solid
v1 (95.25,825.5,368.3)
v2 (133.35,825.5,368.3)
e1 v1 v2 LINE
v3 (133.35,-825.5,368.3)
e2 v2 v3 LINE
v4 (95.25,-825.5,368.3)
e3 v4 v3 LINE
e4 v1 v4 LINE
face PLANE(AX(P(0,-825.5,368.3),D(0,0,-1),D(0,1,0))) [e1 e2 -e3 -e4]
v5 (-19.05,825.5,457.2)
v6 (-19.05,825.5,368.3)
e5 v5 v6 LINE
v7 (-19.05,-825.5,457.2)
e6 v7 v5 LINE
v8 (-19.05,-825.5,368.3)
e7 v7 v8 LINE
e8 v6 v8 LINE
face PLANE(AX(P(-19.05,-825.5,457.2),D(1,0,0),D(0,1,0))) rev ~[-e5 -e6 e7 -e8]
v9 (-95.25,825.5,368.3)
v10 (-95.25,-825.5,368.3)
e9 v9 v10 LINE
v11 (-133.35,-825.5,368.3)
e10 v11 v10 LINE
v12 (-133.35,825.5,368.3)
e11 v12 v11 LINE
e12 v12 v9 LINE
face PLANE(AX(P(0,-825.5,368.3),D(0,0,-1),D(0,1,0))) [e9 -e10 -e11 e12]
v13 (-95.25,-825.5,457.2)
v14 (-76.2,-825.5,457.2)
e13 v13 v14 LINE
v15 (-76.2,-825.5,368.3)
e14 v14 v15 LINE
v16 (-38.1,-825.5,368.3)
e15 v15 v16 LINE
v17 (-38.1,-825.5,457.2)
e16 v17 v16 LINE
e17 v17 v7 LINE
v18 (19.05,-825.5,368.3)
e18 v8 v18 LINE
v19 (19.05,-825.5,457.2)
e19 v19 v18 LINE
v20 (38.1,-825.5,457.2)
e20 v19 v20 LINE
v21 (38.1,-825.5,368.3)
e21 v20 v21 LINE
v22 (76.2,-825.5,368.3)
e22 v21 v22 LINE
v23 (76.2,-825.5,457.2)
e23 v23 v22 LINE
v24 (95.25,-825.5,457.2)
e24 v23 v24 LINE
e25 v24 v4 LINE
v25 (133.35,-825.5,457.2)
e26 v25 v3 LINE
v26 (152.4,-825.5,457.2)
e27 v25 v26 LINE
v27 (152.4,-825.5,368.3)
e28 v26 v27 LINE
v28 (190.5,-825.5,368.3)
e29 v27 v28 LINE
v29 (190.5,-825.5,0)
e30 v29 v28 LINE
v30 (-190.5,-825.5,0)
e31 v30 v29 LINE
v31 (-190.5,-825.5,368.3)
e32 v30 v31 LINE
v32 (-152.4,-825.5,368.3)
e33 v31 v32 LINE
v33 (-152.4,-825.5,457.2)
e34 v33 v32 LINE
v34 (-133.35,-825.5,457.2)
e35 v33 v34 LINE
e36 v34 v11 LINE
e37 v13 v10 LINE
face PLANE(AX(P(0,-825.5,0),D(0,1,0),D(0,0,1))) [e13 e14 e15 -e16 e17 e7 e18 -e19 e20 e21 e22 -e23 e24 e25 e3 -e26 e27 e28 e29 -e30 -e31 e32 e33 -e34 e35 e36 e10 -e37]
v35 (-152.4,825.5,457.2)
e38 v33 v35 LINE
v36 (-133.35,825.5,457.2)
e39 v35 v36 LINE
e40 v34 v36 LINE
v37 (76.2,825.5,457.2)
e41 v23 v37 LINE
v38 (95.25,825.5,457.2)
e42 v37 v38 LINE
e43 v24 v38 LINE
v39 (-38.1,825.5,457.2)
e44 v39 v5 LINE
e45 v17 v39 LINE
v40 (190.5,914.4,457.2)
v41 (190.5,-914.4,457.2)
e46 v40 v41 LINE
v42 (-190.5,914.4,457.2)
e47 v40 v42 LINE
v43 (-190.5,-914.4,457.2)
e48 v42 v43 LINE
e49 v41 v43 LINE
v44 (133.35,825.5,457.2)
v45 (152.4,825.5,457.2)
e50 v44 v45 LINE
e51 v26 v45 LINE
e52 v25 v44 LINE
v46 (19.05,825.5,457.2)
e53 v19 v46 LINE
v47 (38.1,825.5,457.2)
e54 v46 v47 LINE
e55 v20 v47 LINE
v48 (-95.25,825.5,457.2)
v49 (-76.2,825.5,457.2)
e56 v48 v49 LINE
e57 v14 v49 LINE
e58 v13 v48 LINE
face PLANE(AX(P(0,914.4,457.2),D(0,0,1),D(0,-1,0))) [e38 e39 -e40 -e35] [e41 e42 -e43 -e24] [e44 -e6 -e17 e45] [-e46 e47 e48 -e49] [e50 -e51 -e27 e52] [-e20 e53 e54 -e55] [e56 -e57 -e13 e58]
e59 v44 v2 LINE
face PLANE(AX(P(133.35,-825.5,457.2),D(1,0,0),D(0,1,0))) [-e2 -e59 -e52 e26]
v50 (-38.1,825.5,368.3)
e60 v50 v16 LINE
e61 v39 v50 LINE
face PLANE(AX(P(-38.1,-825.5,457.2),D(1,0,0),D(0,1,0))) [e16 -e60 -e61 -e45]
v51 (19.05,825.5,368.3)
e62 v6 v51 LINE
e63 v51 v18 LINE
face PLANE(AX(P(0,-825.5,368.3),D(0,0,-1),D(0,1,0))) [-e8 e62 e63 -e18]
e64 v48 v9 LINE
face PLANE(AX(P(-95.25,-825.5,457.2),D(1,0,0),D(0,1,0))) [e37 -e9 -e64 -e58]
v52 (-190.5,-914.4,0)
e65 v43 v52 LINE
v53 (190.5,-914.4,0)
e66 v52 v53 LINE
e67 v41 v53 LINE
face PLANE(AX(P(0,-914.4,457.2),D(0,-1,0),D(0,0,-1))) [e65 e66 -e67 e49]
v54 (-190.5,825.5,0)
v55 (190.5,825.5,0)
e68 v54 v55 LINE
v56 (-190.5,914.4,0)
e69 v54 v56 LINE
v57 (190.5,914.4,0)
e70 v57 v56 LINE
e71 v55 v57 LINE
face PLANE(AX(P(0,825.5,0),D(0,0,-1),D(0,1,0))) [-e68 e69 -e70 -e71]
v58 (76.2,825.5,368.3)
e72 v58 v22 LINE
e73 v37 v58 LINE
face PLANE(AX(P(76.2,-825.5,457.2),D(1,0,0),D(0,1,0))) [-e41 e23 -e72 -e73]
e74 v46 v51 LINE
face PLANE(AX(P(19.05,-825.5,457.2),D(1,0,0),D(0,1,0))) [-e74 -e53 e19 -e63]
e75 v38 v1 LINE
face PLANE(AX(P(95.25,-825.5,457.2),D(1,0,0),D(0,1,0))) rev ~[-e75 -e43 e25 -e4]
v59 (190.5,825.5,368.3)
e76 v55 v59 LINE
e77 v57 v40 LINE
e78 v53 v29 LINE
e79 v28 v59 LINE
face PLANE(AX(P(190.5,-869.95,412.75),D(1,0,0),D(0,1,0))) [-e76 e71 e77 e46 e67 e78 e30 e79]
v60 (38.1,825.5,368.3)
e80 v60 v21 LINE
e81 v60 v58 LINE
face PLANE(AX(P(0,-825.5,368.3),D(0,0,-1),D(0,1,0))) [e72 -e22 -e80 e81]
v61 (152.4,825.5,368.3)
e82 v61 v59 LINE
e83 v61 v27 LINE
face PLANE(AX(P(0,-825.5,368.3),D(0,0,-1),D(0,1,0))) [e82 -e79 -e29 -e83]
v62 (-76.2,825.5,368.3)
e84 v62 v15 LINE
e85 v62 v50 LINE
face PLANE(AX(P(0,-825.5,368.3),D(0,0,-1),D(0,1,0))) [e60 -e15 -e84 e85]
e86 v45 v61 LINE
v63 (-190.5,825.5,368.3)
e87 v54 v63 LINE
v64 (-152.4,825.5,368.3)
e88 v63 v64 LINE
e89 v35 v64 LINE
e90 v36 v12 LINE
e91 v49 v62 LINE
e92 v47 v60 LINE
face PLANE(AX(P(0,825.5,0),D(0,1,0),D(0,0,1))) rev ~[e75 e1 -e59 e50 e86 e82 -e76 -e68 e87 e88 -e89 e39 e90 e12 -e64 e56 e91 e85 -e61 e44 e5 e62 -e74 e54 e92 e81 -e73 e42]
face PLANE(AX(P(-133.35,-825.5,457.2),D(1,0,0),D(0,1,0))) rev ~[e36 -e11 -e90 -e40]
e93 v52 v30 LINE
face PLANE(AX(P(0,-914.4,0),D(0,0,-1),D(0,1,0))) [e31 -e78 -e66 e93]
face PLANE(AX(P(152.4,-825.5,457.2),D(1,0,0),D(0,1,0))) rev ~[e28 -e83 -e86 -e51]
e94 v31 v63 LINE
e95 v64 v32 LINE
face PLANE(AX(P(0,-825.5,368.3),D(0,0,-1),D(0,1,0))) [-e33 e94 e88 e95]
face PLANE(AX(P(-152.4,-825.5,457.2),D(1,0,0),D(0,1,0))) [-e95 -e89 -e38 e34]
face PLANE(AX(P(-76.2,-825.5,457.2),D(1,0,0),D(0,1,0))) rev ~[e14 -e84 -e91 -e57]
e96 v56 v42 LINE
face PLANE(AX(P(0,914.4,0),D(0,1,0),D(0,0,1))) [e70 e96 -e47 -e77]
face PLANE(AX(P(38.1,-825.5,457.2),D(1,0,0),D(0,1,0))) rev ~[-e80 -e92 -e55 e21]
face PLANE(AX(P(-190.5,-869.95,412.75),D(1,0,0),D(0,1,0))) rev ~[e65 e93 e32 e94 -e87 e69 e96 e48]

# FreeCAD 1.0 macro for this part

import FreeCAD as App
import Part
import Sketcher
Q = App.Units.Quantity

doc = App.newDocument("Part")
body = doc.addObject("PartDesign::Body", "Body")

# Sketch on YZ plane
sketch1 = body.newObject("Sketcher::SketchObject", "Sketch")
sketch1.AttachmentSupport = (doc.getObject("YZ_Plane"), [""])
sketch1.MapMode = "FlatFace"
sketch1.addGeometry([
    Part.LineSegment(App.Vector(-914.4, 457.2, 0), App.Vector(-914.4, 0, 0)),  # 0
    Part.LineSegment(App.Vector(-914.4, 0, 0), App.Vector(-825.5, 0, 0)),  # 1
    Part.LineSegment(App.Vector(-825.5, 0, 0), App.Vector(-825.5, 368.3, 0)),  # 2
    Part.LineSegment(App.Vector(-825.5, 368.3, 0), App.Vector(825.5, 368.3, 0)),  # 3
    Part.LineSegment(App.Vector(825.5, 368.3, 0), App.Vector(825.5, 0, 0)),  # 4
    Part.LineSegment(App.Vector(825.5, 0, 0), App.Vector(914.4, 0, 0)),  # 5
    Part.LineSegment(App.Vector(914.4, 0, 0), App.Vector(914.4, 457.2, 0)),  # 6
    Part.LineSegment(App.Vector(914.4, 457.2, 0), App.Vector(-914.4, 457.2, 0)),  # 7
], False)
sketch1.addConstraint([
    Sketcher.Constraint("Coincident", 0, 2, 1, 1),
    Sketcher.Constraint("Coincident", 1, 2, 2, 1),
    Sketcher.Constraint("Coincident", 2, 2, 3, 1),
    Sketcher.Constraint("Coincident", 3, 2, 4, 1),
    Sketcher.Constraint("Coincident", 4, 2, 5, 1),
    Sketcher.Constraint("Coincident", 5, 2, 6, 1),
    Sketcher.Constraint("Coincident", 6, 2, 7, 1),
    Sketcher.Constraint("Coincident", 7, 2, 0, 1),
    Sketcher.Constraint("Vertical", 0),
    Sketcher.Constraint("Horizontal", 1),
    Sketcher.Constraint("Vertical", 2),
    Sketcher.Constraint("Horizontal", 3),
    Sketcher.Constraint("Vertical", 4),
    Sketcher.Constraint("Horizontal", 5),
    Sketcher.Constraint("Vertical", 6),
    Sketcher.Constraint("Horizontal", 7),
    Sketcher.Constraint("Symmetric", 1, 2, 4, 2, -1, 1),
    Sketcher.Constraint("Symmetric", 0, 2, 5, 2, -2),
    Sketcher.Constraint("DistanceX", 3, 1, 3, 2, Q("65 in")),
    Sketcher.Constraint("DistanceX", 7, 2, 7, 1, Q("72 in")),
    Sketcher.Constraint("DistanceY", 0, 2, 0, 1, Q("18 in")),
    Sketcher.Constraint("DistanceY", 2, 1, 2, 2, Q("14.5 in")),
])
pad1 = body.newObject("PartDesign::Pad", "Pad")
pad1.Profile = sketch1
pad1.Length = Q("15 in")
pad1.Midplane = True

# Sketch on XY plane
sketch2 = body.newObject("Sketcher::SketchObject", "Sketch001")
sketch2.AttachmentSupport = (doc.getObject("XY_Plane"), [""])
sketch2.MapMode = "FlatFace"
sketch2.AttachmentOffset = App.Placement(App.Vector(0, 0, 18 * 25.4), App.Rotation())
sketch2.addGeometry([
    Part.LineSegment(App.Vector(-95.25, 825.5, 0), App.Vector(-95.25, -825.5, 0)),  # 0
    Part.LineSegment(App.Vector(-95.25, -825.5, 0), App.Vector(-76.2, -825.5, 0)),  # 1
    Part.LineSegment(App.Vector(-76.2, -825.5, 0), App.Vector(-76.2, 825.5, 0)),  # 2
    Part.LineSegment(App.Vector(-76.2, 825.5, 0), App.Vector(-95.25, 825.5, 0)),  # 3
    Part.LineSegment(App.Vector(-38.1, 825.5, 0), App.Vector(-38.1, -825.5, 0)),  # 4
    Part.LineSegment(App.Vector(-38.1, -825.5, 0), App.Vector(-19.05, -825.5, 0)),  # 5
    Part.LineSegment(App.Vector(-19.05, -825.5, 0), App.Vector(-19.05, 825.5, 0)),  # 6
    Part.LineSegment(App.Vector(-19.05, 825.5, 0), App.Vector(-38.1, 825.5, 0)),  # 7
    Part.LineSegment(App.Vector(19.05, 825.5, 0), App.Vector(19.05, -825.5, 0)),  # 8
    Part.LineSegment(App.Vector(19.05, -825.5, 0), App.Vector(38.1, -825.5, 0)),  # 9
    Part.LineSegment(App.Vector(38.1, -825.5, 0), App.Vector(38.1, 825.5, 0)),  # 10
    Part.LineSegment(App.Vector(38.1, 825.5, 0), App.Vector(19.05, 825.5, 0)),  # 11
    Part.LineSegment(App.Vector(76.2, 825.5, 0), App.Vector(76.2, -825.5, 0)),  # 12
    Part.LineSegment(App.Vector(76.2, -825.5, 0), App.Vector(95.25, -825.5, 0)),  # 13
    Part.LineSegment(App.Vector(95.25, -825.5, 0), App.Vector(95.25, 825.5, 0)),  # 14
    Part.LineSegment(App.Vector(95.25, 825.5, 0), App.Vector(76.2, 825.5, 0)),  # 15
    Part.LineSegment(App.Vector(133.35, 825.5, 0), App.Vector(133.35, -825.5, 0)),  # 16
    Part.LineSegment(App.Vector(133.35, -825.5, 0), App.Vector(152.4, -825.5, 0)),  # 17
    Part.LineSegment(App.Vector(152.4, -825.5, 0), App.Vector(152.4, 825.5, 0)),  # 18
    Part.LineSegment(App.Vector(152.4, 825.5, 0), App.Vector(133.35, 825.5, 0)),  # 19
    Part.LineSegment(App.Vector(-152.4, 825.5, 0), App.Vector(-152.4, -825.5, 0)),  # 20
    Part.LineSegment(App.Vector(-152.4, -825.5, 0), App.Vector(-133.35, -825.5, 0)),  # 21
    Part.LineSegment(App.Vector(-133.35, -825.5, 0), App.Vector(-133.35, 825.5, 0)),  # 22
    Part.LineSegment(App.Vector(-133.35, 825.5, 0), App.Vector(-152.4, 825.5, 0)),  # 23
], False)
sketch2.addConstraint([
    Sketcher.Constraint("Coincident", 0, 2, 1, 1),
    Sketcher.Constraint("Coincident", 1, 2, 2, 1),
    Sketcher.Constraint("Coincident", 2, 2, 3, 1),
    Sketcher.Constraint("Coincident", 3, 2, 0, 1),
    Sketcher.Constraint("Coincident", 4, 2, 5, 1),
    Sketcher.Constraint("Coincident", 5, 2, 6, 1),
    Sketcher.Constraint("Coincident", 6, 2, 7, 1),
    Sketcher.Constraint("Coincident", 7, 2, 4, 1),
    Sketcher.Constraint("Coincident", 8, 2, 9, 1),
    Sketcher.Constraint("Coincident", 9, 2, 10, 1),
    Sketcher.Constraint("Coincident", 10, 2, 11, 1),
    Sketcher.Constraint("Coincident", 11, 2, 8, 1),
    Sketcher.Constraint("Coincident", 12, 2, 13, 1),
    Sketcher.Constraint("Coincident", 13, 2, 14, 1),
    Sketcher.Constraint("Coincident", 14, 2, 15, 1),
    Sketcher.Constraint("Coincident", 15, 2, 12, 1),
    Sketcher.Constraint("Coincident", 16, 2, 17, 1),
    Sketcher.Constraint("Coincident", 17, 2, 18, 1),
    Sketcher.Constraint("Coincident", 18, 2, 19, 1),
    Sketcher.Constraint("Coincident", 19, 2, 16, 1),
    Sketcher.Constraint("Coincident", 20, 2, 21, 1),
    Sketcher.Constraint("Coincident", 21, 2, 22, 1),
    Sketcher.Constraint("Coincident", 22, 2, 23, 1),
    Sketcher.Constraint("Coincident", 23, 2, 20, 1),
    Sketcher.Constraint("Vertical", 0),
    Sketcher.Constraint("Horizontal", 1),
    Sketcher.Constraint("Vertical", 2),
    Sketcher.Constraint("Horizontal", 3),
    Sketcher.Constraint("Vertical", 4),
    Sketcher.Constraint("Horizontal", 5),
    Sketcher.Constraint("Vertical", 6),
    Sketcher.Constraint("Horizontal", 7),
    Sketcher.Constraint("Vertical", 8),
    Sketcher.Constraint("Horizontal", 9),
    Sketcher.Constraint("Vertical", 10),
    Sketcher.Constraint("Horizontal", 11),
    Sketcher.Constraint("Vertical", 12),
    Sketcher.Constraint("Horizontal", 13),
    Sketcher.Constraint("Vertical", 14),
    Sketcher.Constraint("Horizontal", 15),
    Sketcher.Constraint("Vertical", 16),
    Sketcher.Constraint("Horizontal", 17),
    Sketcher.Constraint("Vertical", 18),
    Sketcher.Constraint("Horizontal", 19),
    Sketcher.Constraint("Vertical", 20),
    Sketcher.Constraint("Horizontal", 21),
    Sketcher.Constraint("Vertical", 22),
    Sketcher.Constraint("Horizontal", 23),
    Sketcher.Constraint("Symmetric", 6, 2, 8, 2, -1, 1),
    Sketcher.Constraint("Symmetric", 4, 2, 10, 2, -1, 1),
    Sketcher.Constraint("Symmetric", 2, 2, 12, 2, -1, 1),
    Sketcher.Constraint("Symmetric", 0, 2, 14, 2, -1, 1),
    Sketcher.Constraint("Symmetric", 18, 2, 20, 2, -1, 1),
    Sketcher.Constraint("Symmetric", 16, 2, 22, 2, -1, 1),
    Sketcher.Constraint("Horizontal", 1, 2, 4, 2),
    Sketcher.Constraint("Horizontal", 3, 2, 6, 2),
    Sketcher.Constraint("Horizontal", 5, 2, 8, 2),
    Sketcher.Constraint("Horizontal", 13, 2, 16, 2),
    Sketcher.Constraint("Horizontal", 15, 2, 18, 2),
    Sketcher.Constraint("Equal", 3, 5),
    Sketcher.Constraint("Equal", 15, 17),
    Sketcher.Constraint("DistanceY", 0, 2, 0, 1, Q("65 in")),
    Sketcher.Constraint("DistanceX", 1, 2, -1, 1, Q("3 in")),
    Sketcher.Constraint("DistanceX", -1, 1, 17, 2, Q("6 in")),
    Sketcher.Constraint("DistanceX", 0, 2, 5, 2, Q("3 in")),
    Sketcher.Constraint("DistanceX", 4, 2, 9, 2, Q("3 in")),
])
pocket1 = body.newObject("PartDesign::Pocket", "Pocket")
pocket1.Profile = sketch2
pocket1.Length = Q("4 in")

doc.recompute()
